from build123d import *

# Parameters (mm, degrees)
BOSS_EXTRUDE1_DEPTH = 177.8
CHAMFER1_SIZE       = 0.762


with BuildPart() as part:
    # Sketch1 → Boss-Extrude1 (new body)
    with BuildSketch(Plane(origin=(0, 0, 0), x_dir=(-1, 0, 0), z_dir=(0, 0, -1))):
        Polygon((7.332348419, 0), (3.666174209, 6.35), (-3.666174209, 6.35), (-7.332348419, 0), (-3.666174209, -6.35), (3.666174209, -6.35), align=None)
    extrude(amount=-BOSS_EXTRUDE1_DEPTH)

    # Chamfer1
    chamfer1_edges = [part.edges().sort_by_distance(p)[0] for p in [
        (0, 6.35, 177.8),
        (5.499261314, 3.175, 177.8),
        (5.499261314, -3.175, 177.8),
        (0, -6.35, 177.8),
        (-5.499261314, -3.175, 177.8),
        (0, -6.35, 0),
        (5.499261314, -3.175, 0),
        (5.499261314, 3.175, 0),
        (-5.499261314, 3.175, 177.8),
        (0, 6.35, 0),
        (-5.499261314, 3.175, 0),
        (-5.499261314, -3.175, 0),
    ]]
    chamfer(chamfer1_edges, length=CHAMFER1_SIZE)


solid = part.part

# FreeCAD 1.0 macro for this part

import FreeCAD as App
import Part
import Sketcher

V = App.Vector
Q = App.Units.Quantity


def edges_at(feature, points):
    """Names of the edges that pass closest to the given points."""
    edges = feature.Shape.Edges
    near = lambda p: min(range(len(edges)), key=lambda i: edges[i].distToShape(Part.Vertex(*p))[0])
    return sorted({f"Edge{near(p) + 1}" for p in points})


def add_polygon(sketch, points):
    """Adds a closed chain of lines whose ends are joined by coincident constraints."""
    first, n = sketch.GeometryCount, len(points)
    for a, b in zip(points, points[1:] + points[:1]):
        sketch.addGeometry(Part.LineSegment(App.Vector(*a, 0), App.Vector(*b, 0)), False)
    for i in range(n):
        sketch.addConstraint(Sketcher.Constraint("Coincident", first + i, 2, first + (i + 1) % n, 1))

doc = App.newDocument("Part")
params = doc.addObject("Spreadsheet::Sheet", "Params")
for row, (alias, value) in enumerate([
    ("pad1_length", "7 in"),
    ("chamfer_size", "0.03 in"),
], start=1):
    params.set(f"A{row}", alias)
    params.set(f"B{row}", "=" + value)
    params.setAlias(f"B{row}", alias)

body = doc.addObject("PartDesign::Body", "Body")

# Sketch on XY plane
sketch1 = body.newObject("Sketcher::SketchObject", "Sketch")
sketch1.AttachmentSupport = (doc.getObject("XY_Plane"), [""])
sketch1.MapMode = "FlatFace"
add_polygon(sketch1, [(-7, 0), (-4, 6), (4, 6), (7, 0), (4, -6), (-4, -6)])  # lines 0-5
sketch1.addConstraint(Sketcher.Constraint("Horizontal", 1))
sketch1.addConstraint(Sketcher.Constraint("Horizontal", 4))
sketch1.addConstraint(Sketcher.Constraint("Symmetric", 0, 2, 3, 2, -1, 1))
sketch1.addConstraint(Sketcher.Constraint("Symmetric", 2, 2, 5, 2, -1, 1))
sketch1.addConstraint(Sketcher.Constraint("PointOnObject", 2, 2, -1))
sketch1.addConstraint(Sketcher.Constraint("Parallel", 2, 5))
sketch1.addConstraint(Sketcher.Constraint("Vertical", 1, 2, 3, 2))
sketch1.addConstraint(Sketcher.Constraint("Angle", 0, Q("60 deg")))
sketch1.addConstraint(Sketcher.Constraint("DistanceY", 3, 2, 1, 2, Q("0.5 in")))
sketch1.addConstraint(Sketcher.Constraint("DistanceX", 1, 1, 1, 2, Q("7.332348 mm")))
pad1 = body.newObject("PartDesign::Pad", "Pad")
pad1.Profile = sketch1
pad1.setExpression("Length", "Params.pad1_length")
doc.recompute()

chamfer = body.newObject("PartDesign::Chamfer", "Chamfer")
chamfer.Base = (pad1, edges_at(pad1, [
    (0, 6.35, 177.8),
    (5.499, 3.175, 177.8),
    (5.499, -3.175, 177.8),
    (0, -6.35, 177.8),
    (-5.499, -3.175, 177.8),
    (0, -6.35, 0),
    (5.499, -3.175, 0),
    (5.499, 3.175, 0),
    (-5.499, 3.175, 177.8),
    (0, 6.35, 0),
    (-5.499, 3.175, 0),
    (-5.499, -3.175, 0),
]))
chamfer.setExpression("Size", "Params.chamfer_size")

doc.recompute()
